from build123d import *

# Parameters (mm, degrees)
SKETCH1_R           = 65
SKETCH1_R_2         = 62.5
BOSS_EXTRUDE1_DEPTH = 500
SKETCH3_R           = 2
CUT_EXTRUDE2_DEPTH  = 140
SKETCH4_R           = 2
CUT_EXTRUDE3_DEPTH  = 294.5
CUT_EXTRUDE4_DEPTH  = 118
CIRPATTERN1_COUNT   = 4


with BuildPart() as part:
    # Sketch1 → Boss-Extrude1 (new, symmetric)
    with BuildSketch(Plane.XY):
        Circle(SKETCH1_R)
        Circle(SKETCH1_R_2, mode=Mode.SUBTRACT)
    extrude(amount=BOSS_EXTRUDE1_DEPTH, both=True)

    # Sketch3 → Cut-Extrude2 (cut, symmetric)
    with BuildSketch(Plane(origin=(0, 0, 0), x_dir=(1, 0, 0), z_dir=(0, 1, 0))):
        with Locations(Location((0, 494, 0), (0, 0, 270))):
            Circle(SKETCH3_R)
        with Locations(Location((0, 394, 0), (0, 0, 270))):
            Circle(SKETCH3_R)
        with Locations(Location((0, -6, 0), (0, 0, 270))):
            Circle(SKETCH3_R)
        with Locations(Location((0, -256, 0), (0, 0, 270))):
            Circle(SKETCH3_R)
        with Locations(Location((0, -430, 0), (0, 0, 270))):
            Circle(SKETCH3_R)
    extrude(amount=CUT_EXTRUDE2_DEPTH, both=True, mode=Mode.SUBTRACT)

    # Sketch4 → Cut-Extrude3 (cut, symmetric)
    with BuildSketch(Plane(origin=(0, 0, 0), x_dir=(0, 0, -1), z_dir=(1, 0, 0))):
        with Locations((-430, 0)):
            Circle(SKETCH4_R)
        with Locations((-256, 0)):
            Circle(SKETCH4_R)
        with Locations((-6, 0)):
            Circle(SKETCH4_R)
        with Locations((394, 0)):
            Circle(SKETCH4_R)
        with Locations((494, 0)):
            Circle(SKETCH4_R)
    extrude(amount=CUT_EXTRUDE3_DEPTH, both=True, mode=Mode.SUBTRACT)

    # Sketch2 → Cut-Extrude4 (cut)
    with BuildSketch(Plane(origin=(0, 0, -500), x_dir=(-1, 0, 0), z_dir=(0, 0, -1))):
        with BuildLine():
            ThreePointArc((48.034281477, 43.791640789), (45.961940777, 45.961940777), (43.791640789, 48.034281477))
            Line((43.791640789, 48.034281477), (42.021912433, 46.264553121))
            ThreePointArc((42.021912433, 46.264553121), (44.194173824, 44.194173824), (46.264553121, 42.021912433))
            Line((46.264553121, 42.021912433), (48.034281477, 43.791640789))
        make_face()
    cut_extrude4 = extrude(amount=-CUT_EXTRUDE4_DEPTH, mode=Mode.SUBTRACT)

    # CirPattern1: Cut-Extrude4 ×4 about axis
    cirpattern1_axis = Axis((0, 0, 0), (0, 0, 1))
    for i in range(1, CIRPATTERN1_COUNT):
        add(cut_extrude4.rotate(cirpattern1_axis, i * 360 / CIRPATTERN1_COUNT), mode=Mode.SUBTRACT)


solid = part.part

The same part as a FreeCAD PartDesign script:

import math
import FreeCAD as App
import Part
import Sketcher
Q = App.Units.Quantity

doc = App.newDocument("Part")
body = doc.addObject("PartDesign::Body", "Body")

# Sketch on XY plane
sketch1 = doc.addObject("Sketcher::SketchObject", "Sketch")
body.addObject(sketch1)
sketch1.AttachmentSupport = (doc.XY_Plane, [""])
sketch1.MapMode = "FlatFace"
sketch1.addGeometry([
    Part.Circle(App.Vector(0, 0, 0), App.Vector(0, 0, 1), 65),
    Part.Circle(App.Vector(0, 0, 0), App.Vector(0, 0, 1), 62),
], False)
sketch1.addConstraint([
    Sketcher.Constraint("Coincident", 0, 3, -1, 1),
    Sketcher.Constraint("Coincident", 1, 3, -1, 1),
    Sketcher.Constraint("Diameter", 0, Q("130 mm")),
    Sketcher.Constraint("Diameter", 1, Q("125 mm")),
])
pad1 = doc.addObject("PartDesign::Pad", "Pad")
body.addObject(pad1)
pad1.Profile = sketch1
pad1.Length = 1000
pad1.Midplane = True

# Sketch on XZ plane
sketch2 = doc.addObject("Sketcher::SketchObject", "Sketch001")
body.addObject(sketch2)
sketch2.AttachmentSupport = (doc.XZ_Plane, [""])
sketch2.MapMode = "FlatFace"
sketch2.addGeometry([
    Part.Circle(App.Vector(0, -494, 0), App.Vector(0, 0, 1), 2),  # 0
    Part.Circle(App.Vector(0, -394, 0), App.Vector(0, 0, 1), 2),  # 1
    Part.Circle(App.Vector(0, 6, 0), App.Vector(0, 0, 1), 2),  # 2
    Part.Circle(App.Vector(0, 256, 0), App.Vector(0, 0, 1), 2),  # 3
    Part.Circle(App.Vector(0, 430, 0), App.Vector(0, 0, 1), 2),  # 4
], False)
sketch2.addConstraint([
    Sketcher.Constraint("Equal", 0, 1),
    Sketcher.Constraint("Equal", 1, 2),
    Sketcher.Constraint("Equal", 2, 3),
    Sketcher.Constraint("Equal", 3, 4),
    Sketcher.Constraint("PointOnObject", 0, 3, -2),
    Sketcher.Constraint("PointOnObject", 1, 3, -2),
    Sketcher.Constraint("PointOnObject", 2, 3, -2),
    Sketcher.Constraint("PointOnObject", 3, 3, -2),
    Sketcher.Constraint("PointOnObject", 4, 3, -2),
    Sketcher.Constraint("Diameter", 0, Q("4 mm")),
    Sketcher.Constraint("DistanceY", 0, 3, -1, 1, Q("494 mm")),
    Sketcher.Constraint("DistanceY", 1, 3, -1, 1, Q("394 mm")),
    Sketcher.Constraint("DistanceY", -1, 1, 2, 3, Q("6 mm")),
    Sketcher.Constraint("DistanceY", -1, 1, 3, 3, Q("256 mm")),
    Sketcher.Constraint("DistanceY", -1, 1, 4, 3, Q("430 mm")),
])
pocket1 = doc.addObject("PartDesign::Pocket", "Pocket")
body.addObject(pocket1)
pocket1.Profile = sketch2
pocket1.Length = 280
pocket1.Midplane = True

# Sketch on YZ plane
sketch3 = doc.addObject("Sketcher::SketchObject", "Sketch002")
body.addObject(sketch3)
sketch3.AttachmentSupport = (doc.YZ_Plane, [""])
sketch3.MapMode = "FlatFace"
sketch3.addGeometry([
    Part.Circle(App.Vector(0, 430, 0), App.Vector(0, 0, 1), 2),  # 0
    Part.Circle(App.Vector(0, 256, 0), App.Vector(0, 0, 1), 2),  # 1
    Part.Circle(App.Vector(0, 6, 0), App.Vector(0, 0, 1), 2),  # 2
    Part.Circle(App.Vector(0, -394, 0), App.Vector(0, 0, 1), 2),  # 3
    Part.Circle(App.Vector(0, -494, 0), App.Vector(0, 0, 1), 2),  # 4
], False)
sketch3.addConstraint([
    Sketcher.Constraint("Equal", 0, 1),
    Sketcher.Constraint("Equal", 1, 2),
    Sketcher.Constraint("Equal", 2, 3),
    Sketcher.Constraint("Equal", 3, 4),
    Sketcher.Constraint("PointOnObject", 0, 3, -2),
    Sketcher.Constraint("PointOnObject", 1, 3, -2),
    Sketcher.Constraint("PointOnObject", 2, 3, -2),
    Sketcher.Constraint("PointOnObject", 3, 3, -2),
    Sketcher.Constraint("PointOnObject", 4, 3, -2),
    Sketcher.Constraint("Diameter", 0, Q("4 mm")),
    Sketcher.Constraint("DistanceY", -1, 1, 0, 3, Q("430 mm")),
    Sketcher.Constraint("DistanceY", -1, 1, 1, 3, Q("256 mm")),
    Sketcher.Constraint("DistanceY", -1, 1, 2, 3, Q("6 mm")),
    Sketcher.Constraint("DistanceY", 3, 3, -1, 1, Q("394 mm")),
    Sketcher.Constraint("DistanceY", 4, 3, -1, 1, Q("494 mm")),
])
pocket2 = doc.addObject("PartDesign::Pocket", "Pocket001")
body.addObject(pocket2)
pocket2.Profile = sketch3
pocket2.Length = 589
pocket2.Midplane = True

# Sketch on XY plane
sketch4 = doc.addObject("Sketcher::SketchObject", "Sketch003")
body.addObject(sketch4)
sketch4.AttachmentSupport = (doc.XY_Plane, [""])
sketch4.MapMode = "FlatFace"
sketch4.AttachmentOffset = App.Placement(App.Vector(0, 0, -500), App.Rotation())
sketch4.addGeometry([
    Part.ArcOfCircle(Part.Circle(App.Vector(0, 0, 0), App.Vector(0, 0, 1), 65), math.radians(132.35), math.radians(137.65)),
    Part.LineSegment(App.Vector(-43.8, 48, 0), App.Vector(-42, 46.3, 0)),
    Part.ArcOfCircle(Part.Circle(App.Vector(0, 0, 0), App.Vector(0, 0, 1), 62.5), math.radians(132.25), math.radians(137.75)),
    Part.LineSegment(App.Vector(-46.3, 42, 0), App.Vector(-48, 43.8, 0)),
], False)
sketch4.addConstraint([
    Sketcher.Constraint("Coincident", 0, 1, 1, 1),
    Sketcher.Constraint("Coincident", 1, 2, 2, 1),
    Sketcher.Constraint("Coincident", 2, 2, 3, 1),
    Sketcher.Constraint("Coincident", 3, 2, 0, 2),
    Sketcher.Constraint("Coincident", 0, 3, -1, 1),
    Sketcher.Constraint("Coincident", 2, 3, -1, 1),
    Sketcher.Constraint("Parallel", 1, 3),
    Sketcher.Constraint("Equal", 1, 3),
    Sketcher.Constraint("Radius", 0, Q("65 mm")),
    Sketcher.Constraint("Radius", 2, Q("62.5 mm")),
    Sketcher.Constraint("Angle", 1, Q("-45 deg")),
    Sketcher.Constraint("DistanceX", 0, 1, -1, 1, Q("43.791641 mm")),
])
pocket3 = doc.addObject("PartDesign::Pocket", "Pocket002")
body.addObject(pocket3)
pocket3.Profile = sketch4
pocket3.Length = 118
pocket3.Reversed = True
doc.recompute()

polarpattern = doc.addObject("PartDesign::PolarPattern", "PolarPattern")
body.addObject(polarpattern)
polarpattern.Originals = [pocket3]
polarpattern.Axis = (doc.Z_Axis, [""])
polarpattern.Angle = 360
polarpattern.Occurrences = 4
body.Tip = polarpattern

doc.recompute()
